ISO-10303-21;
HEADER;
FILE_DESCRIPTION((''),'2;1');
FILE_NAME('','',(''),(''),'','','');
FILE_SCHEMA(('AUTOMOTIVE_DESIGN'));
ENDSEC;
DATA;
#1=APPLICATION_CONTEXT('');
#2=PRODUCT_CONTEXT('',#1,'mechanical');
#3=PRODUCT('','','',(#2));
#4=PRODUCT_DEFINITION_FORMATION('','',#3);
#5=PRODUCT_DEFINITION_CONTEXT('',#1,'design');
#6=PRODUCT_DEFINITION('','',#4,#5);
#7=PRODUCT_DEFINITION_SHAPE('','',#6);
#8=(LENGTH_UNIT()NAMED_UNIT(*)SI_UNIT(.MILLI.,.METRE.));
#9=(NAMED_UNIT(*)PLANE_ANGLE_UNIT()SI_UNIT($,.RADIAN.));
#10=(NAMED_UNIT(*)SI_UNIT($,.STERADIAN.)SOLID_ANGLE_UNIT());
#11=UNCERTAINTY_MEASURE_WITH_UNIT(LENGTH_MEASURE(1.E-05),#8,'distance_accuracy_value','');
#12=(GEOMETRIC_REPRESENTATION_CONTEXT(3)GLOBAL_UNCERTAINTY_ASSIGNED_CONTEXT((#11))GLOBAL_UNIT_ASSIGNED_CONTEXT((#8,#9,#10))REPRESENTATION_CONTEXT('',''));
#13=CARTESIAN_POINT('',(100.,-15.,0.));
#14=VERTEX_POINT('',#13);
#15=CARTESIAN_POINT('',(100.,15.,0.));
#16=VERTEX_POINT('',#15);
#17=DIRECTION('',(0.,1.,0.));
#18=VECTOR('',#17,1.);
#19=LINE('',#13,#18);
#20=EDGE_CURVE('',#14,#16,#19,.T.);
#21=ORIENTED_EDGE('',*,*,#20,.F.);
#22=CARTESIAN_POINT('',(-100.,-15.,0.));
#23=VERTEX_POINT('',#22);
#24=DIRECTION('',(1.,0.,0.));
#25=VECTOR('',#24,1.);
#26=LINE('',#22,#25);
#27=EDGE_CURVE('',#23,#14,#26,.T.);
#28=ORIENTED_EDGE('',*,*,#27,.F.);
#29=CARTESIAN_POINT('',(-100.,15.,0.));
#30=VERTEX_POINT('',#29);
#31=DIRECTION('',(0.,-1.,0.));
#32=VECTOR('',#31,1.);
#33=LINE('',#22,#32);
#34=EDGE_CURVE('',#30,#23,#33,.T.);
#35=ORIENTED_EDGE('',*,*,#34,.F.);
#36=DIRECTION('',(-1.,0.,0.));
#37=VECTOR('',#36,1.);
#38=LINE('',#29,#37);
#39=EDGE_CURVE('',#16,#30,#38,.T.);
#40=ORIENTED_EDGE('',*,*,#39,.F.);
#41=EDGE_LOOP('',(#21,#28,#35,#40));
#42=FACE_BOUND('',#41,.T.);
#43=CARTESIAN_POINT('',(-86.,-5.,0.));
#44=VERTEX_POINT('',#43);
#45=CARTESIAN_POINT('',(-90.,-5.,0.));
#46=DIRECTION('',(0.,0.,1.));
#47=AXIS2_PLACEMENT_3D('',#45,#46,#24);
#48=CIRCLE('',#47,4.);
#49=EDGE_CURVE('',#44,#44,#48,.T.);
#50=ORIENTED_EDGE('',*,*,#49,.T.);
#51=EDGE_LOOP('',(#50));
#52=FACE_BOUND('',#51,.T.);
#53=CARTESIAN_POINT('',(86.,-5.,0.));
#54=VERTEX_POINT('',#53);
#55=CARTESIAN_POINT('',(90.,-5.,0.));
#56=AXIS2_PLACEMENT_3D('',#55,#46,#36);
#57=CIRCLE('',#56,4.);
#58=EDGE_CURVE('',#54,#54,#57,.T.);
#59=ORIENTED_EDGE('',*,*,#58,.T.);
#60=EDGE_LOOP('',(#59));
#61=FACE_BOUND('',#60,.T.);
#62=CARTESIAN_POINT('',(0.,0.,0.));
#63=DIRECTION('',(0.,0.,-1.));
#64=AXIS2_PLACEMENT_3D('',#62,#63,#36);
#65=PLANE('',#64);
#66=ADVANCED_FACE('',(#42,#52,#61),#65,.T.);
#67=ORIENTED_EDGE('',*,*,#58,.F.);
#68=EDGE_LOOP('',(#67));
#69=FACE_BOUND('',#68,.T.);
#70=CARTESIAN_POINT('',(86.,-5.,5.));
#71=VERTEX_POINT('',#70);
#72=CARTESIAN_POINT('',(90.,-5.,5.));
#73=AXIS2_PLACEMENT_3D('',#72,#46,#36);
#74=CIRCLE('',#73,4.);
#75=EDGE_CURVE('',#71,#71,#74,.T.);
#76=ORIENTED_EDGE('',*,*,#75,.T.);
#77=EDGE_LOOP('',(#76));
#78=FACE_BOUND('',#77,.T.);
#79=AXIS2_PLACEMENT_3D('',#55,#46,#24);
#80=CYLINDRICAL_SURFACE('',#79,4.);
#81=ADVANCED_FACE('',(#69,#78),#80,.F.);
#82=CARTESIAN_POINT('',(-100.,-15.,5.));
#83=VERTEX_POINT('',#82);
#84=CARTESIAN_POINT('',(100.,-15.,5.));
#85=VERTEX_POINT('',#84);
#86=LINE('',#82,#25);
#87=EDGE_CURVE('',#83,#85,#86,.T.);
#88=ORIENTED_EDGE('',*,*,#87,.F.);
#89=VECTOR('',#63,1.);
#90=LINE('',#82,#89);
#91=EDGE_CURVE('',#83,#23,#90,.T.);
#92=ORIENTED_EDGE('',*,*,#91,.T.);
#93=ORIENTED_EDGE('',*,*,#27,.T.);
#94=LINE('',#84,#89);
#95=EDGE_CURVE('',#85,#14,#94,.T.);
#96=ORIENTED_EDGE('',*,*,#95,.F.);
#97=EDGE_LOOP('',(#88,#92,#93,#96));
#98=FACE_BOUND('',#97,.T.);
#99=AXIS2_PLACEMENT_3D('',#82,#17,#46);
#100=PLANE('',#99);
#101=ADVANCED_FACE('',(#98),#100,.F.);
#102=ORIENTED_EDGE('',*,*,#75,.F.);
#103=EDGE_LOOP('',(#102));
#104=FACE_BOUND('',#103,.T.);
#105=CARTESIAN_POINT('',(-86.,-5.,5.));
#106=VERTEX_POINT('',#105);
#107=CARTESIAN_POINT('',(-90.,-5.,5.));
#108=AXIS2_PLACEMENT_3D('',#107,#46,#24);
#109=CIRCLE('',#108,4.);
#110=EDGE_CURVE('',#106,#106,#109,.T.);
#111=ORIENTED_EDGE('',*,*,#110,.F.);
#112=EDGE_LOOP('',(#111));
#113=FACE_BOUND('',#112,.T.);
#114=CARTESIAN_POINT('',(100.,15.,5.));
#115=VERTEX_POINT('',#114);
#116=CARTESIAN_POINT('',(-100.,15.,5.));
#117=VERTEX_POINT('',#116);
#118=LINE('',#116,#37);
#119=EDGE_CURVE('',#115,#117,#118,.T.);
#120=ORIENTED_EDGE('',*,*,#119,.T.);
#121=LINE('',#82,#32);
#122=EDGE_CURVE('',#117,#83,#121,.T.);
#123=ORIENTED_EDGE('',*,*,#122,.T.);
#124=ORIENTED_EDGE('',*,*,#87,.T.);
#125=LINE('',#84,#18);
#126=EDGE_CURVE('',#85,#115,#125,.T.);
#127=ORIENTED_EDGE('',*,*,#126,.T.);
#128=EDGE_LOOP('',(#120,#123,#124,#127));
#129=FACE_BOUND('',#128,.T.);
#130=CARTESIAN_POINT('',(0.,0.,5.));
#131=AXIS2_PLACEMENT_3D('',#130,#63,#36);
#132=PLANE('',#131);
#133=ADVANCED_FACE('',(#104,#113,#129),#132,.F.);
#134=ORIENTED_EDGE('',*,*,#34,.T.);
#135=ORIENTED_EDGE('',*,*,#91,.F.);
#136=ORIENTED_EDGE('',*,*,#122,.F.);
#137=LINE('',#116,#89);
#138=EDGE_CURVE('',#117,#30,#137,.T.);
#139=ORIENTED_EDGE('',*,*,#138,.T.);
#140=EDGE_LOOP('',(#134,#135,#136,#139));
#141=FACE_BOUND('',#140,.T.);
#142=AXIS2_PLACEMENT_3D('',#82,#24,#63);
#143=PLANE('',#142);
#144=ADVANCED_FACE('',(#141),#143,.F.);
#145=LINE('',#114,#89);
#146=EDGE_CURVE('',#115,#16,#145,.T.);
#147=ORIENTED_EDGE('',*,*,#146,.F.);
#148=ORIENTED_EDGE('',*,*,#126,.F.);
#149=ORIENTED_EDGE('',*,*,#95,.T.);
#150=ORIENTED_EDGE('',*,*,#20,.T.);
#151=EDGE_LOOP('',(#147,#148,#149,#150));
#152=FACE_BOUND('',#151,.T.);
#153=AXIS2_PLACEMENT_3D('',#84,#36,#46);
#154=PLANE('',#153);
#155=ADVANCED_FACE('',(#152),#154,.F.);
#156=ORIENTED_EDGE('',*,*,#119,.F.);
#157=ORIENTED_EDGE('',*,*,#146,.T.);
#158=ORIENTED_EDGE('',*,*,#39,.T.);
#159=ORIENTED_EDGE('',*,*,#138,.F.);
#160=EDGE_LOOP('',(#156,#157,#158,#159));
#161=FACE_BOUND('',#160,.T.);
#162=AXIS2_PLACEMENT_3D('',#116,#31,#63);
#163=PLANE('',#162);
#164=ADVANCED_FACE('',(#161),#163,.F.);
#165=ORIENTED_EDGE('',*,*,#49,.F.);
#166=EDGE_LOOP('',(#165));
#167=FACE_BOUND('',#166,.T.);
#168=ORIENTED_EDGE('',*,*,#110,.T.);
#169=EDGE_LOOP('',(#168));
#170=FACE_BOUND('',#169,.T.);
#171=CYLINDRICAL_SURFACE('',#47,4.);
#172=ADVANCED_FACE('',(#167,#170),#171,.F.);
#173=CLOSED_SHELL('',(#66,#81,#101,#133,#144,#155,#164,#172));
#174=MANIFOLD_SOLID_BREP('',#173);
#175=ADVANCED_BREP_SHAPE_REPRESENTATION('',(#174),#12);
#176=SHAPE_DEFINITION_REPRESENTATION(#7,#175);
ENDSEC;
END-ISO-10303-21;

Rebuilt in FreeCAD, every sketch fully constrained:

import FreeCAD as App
import Part
import Sketcher
from FreeCAD import Vector
Q = App.Units.Quantity

doc = App.newDocument("Part")
body = doc.addObject("PartDesign::Body", "Body")

sketch1 = doc.addObject("Sketcher::SketchObject", "Sketch")
body.addObject(sketch1)
sketch1.AttachmentSupport = (doc.XY_Plane, [""])
sketch1.MapMode = "FlatFace"
sketch1.addGeometry(Part.LineSegment(Vector(-100, 15, 0), Vector(-100, -15, 0)), False)
sketch1.addGeometry(Part.LineSegment(Vector(-100, -15, 0), Vector(100, -15, 0)), False)
sketch1.addGeometry(Part.LineSegment(Vector(100, -15, 0), Vector(100, 15, 0)), False)
sketch1.addGeometry(Part.LineSegment(Vector(100, 15, 0), Vector(-100, 15, 0)), False)
sketch1.addConstraint(Sketcher.Constraint("Coincident", 0, 2, 1, 1))
sketch1.addConstraint(Sketcher.Constraint("Coincident", 1, 2, 2, 1))
sketch1.addConstraint(Sketcher.Constraint("Coincident", 2, 2, 3, 1))
sketch1.addConstraint(Sketcher.Constraint("Coincident", 3, 2, 0, 1))
sketch1.addConstraint(Sketcher.Constraint("Vertical", 0))
sketch1.addConstraint(Sketcher.Constraint("Horizontal", 1))
sketch1.addConstraint(Sketcher.Constraint("Vertical", 2))
sketch1.addConstraint(Sketcher.Constraint("Horizontal", 3))
sketch1.addConstraint(Sketcher.Constraint("Symmetric", 0, 2, 2, 2, -1, 1))
sketch1.addConstraint(Sketcher.Constraint("DistanceX", 1, 1, 1, 2, Q("200 mm")))
sketch1.addConstraint(Sketcher.Constraint("DistanceY", 0, 2, 0, 1, Q("30 mm")))
pad1 = doc.addObject("PartDesign::Pad", "Pad")
body.addObject(pad1)
pad1.Profile = sketch1
pad1.Length = 5

sketch2 = doc.addObject("Sketcher::SketchObject", "Sketch001")
body.addObject(sketch2)
sketch2.AttachmentSupport = (doc.XY_Plane, [""])
sketch2.MapMode = "FlatFace"
sketch2.AttachmentOffset = App.Placement(Vector(0, 0, 5), App.Rotation())
sketch2.addGeometry(Part.Circle(Vector(-90, -5, 0), Vector(0, 0, 1), 4), False)
sketch2.addGeometry(Part.Circle(Vector(90, -5, 0), Vector(0, 0, 1), 4), False)
sketch2.addConstraint(Sketcher.Constraint("Equal", 0, 1))
sketch2.addConstraint(Sketcher.Constraint("Symmetric", 0, 3, 1, 3, -2))
sketch2.addConstraint(Sketcher.Constraint("Diameter", 0, Q("8 mm")))
sketch2.addConstraint(Sketcher.Constraint("DistanceX", 0, 3, -1, 1, Q("90 mm")))
sketch2.addConstraint(Sketcher.Constraint("DistanceY", 0, 3, -1, 1, Q("5 mm")))
pocket1 = doc.addObject("PartDesign::Pocket", "Pocket")
body.addObject(pocket1)
pocket1.Profile = sketch2
pocket1.Length = 5

doc.recompute()
